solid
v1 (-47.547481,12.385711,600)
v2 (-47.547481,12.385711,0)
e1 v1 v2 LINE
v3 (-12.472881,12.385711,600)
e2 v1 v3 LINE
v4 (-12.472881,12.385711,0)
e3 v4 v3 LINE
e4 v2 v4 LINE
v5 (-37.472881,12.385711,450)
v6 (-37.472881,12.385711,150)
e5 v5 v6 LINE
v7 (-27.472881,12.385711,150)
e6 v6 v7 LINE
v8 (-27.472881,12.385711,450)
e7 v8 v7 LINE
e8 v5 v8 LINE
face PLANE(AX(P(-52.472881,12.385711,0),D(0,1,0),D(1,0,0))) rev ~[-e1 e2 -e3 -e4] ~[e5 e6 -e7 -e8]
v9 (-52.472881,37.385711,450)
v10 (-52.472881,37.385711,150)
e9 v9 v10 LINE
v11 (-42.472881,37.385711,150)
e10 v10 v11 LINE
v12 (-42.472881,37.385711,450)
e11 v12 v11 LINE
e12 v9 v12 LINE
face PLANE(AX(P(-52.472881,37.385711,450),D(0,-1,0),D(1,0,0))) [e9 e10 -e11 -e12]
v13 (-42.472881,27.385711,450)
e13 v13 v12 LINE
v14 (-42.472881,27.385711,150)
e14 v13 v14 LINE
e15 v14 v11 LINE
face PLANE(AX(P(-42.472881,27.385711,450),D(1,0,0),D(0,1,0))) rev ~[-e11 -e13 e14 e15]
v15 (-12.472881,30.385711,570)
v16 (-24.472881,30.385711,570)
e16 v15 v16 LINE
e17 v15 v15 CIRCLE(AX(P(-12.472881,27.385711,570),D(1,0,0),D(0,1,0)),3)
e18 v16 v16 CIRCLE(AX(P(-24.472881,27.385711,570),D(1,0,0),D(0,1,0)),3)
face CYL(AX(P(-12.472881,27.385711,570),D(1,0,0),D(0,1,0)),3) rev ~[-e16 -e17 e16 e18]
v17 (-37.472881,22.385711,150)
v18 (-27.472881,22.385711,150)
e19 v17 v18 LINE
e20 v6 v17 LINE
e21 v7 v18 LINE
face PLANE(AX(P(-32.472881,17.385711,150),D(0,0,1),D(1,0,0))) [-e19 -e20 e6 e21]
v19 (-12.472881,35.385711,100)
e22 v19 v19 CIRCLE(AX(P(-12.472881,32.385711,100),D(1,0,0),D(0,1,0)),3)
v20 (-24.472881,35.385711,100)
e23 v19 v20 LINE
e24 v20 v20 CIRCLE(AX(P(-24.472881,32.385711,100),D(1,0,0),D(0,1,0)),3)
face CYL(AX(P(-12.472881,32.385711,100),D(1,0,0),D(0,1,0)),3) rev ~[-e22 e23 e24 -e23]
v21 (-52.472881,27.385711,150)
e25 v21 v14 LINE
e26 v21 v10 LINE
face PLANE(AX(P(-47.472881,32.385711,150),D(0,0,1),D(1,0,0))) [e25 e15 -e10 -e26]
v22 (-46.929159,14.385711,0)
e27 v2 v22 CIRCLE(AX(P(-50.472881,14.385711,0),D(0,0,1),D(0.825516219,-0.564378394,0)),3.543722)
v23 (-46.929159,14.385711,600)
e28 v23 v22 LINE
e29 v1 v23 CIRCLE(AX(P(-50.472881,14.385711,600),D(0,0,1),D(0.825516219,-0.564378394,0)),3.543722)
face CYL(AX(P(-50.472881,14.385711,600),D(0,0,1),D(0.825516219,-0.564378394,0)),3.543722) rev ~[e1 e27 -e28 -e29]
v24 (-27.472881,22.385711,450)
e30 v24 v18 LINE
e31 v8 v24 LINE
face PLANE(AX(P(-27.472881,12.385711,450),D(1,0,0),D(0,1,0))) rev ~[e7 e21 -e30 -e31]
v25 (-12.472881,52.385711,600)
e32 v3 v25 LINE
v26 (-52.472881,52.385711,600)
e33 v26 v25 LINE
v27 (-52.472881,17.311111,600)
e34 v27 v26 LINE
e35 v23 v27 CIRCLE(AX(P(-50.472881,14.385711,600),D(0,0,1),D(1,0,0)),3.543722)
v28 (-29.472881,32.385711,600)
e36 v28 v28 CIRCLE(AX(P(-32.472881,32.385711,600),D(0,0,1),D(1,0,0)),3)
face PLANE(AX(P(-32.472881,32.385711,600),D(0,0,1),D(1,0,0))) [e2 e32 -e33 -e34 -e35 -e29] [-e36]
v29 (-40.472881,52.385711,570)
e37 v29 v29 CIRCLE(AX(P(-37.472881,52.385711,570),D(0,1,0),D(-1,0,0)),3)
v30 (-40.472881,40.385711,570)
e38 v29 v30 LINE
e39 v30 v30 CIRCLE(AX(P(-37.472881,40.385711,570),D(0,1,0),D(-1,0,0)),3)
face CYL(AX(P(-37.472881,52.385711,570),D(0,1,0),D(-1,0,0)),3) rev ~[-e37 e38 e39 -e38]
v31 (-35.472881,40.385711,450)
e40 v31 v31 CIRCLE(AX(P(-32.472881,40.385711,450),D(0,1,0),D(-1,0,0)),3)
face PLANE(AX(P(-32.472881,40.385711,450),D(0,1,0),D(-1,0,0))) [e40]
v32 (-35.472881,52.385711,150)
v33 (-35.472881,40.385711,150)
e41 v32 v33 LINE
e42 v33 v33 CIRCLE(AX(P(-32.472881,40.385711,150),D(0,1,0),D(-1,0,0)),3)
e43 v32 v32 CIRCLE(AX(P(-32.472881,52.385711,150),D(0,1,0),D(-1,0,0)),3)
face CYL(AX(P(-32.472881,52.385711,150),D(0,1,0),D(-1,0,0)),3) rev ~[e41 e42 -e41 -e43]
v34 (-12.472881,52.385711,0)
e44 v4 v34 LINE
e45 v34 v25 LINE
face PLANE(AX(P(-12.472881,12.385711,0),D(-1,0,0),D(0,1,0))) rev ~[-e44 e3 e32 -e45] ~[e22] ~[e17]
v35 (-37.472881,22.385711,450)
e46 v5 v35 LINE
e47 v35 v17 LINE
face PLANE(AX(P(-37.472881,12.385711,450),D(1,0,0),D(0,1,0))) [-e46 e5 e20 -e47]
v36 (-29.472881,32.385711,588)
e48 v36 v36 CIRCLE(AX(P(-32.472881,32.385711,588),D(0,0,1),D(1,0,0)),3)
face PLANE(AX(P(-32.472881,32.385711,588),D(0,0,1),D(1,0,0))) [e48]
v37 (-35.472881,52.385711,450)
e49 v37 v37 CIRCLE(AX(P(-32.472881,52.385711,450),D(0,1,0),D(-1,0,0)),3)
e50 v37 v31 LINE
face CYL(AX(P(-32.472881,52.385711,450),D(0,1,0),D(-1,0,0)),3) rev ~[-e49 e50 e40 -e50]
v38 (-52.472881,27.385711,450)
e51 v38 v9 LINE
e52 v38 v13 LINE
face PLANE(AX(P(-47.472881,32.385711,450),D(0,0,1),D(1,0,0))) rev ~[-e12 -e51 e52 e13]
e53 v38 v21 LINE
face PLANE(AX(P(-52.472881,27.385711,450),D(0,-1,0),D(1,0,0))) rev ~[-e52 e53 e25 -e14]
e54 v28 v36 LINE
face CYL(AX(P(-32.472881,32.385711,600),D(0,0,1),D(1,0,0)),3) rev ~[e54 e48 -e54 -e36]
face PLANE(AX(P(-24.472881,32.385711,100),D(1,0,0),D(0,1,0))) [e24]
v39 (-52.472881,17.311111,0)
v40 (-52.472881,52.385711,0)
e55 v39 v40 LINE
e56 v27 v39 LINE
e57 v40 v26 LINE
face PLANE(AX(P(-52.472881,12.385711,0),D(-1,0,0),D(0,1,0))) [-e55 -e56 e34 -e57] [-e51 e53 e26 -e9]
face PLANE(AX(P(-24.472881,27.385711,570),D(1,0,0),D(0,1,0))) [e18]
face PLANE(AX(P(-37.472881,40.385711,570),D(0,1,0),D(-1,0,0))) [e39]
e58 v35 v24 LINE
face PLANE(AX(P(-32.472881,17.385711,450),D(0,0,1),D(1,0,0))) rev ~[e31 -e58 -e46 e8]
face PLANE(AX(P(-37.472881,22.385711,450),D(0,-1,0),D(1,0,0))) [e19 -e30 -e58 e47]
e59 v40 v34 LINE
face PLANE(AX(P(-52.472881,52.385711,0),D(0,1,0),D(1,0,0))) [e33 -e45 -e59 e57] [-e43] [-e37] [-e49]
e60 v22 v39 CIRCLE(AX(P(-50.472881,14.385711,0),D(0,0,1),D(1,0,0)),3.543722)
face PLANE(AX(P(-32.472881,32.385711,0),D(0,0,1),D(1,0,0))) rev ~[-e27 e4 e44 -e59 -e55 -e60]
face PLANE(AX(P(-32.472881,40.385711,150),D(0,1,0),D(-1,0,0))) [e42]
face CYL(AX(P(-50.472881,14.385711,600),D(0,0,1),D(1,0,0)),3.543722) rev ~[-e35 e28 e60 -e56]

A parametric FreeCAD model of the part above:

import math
import FreeCAD as App
import Part
import Sketcher

V = App.Vector


def add_polygon(sketch, points):
    """Adds a closed chain of lines whose ends are joined by coincident constraints."""
    first, n = sketch.GeometryCount, len(points)
    for a, b in zip(points, points[1:] + points[:1]):
        sketch.addGeometry(Part.LineSegment(App.Vector(*a, 0), App.Vector(*b, 0)), False)
    for i in range(n):
        sketch.addConstraint(Sketcher.Constraint("Coincident", first + i, 2, first + (i + 1) % n, 1))

doc = App.newDocument("Part")
body = doc.addObject("PartDesign::Body", "Body")

# Sketch on XY plane
sketch1 = body.newObject("Sketcher::SketchObject", "Sketch")
sketch1.AttachmentSupport = (doc.getObject("XY_Plane"), [""])
sketch1.MapMode = "FlatFace"
add_polygon(sketch1, [(-52.472881, 52.385711), (-52.472881, 12.385711), (-12.472881, 12.385711), (-12.472881, 52.385711)])  # lines 0-3
sketch1.addConstraint(Sketcher.Constraint("Vertical", 0))
sketch1.addConstraint(Sketcher.Constraint("Horizontal", 1))
sketch1.addConstraint(Sketcher.Constraint("Vertical", 2))
sketch1.addConstraint(Sketcher.Constraint("Horizontal", 3))
sketch1.addConstraint(Sketcher.Constraint("Equal", 3, 0))
sketch1.addConstraint(Sketcher.Constraint("DistanceX", 1, 1, 1, 2, 40.0))
sketch1.addConstraint(Sketcher.Constraint("DistanceX", 0, 2, -1, 1, 52.472881))
sketch1.addConstraint(Sketcher.Constraint("DistanceY", -1, 1, 0, 2, 12.385711))
pad1 = body.newObject("PartDesign::Pad", "Pad")
pad1.Profile = sketch1
pad1.Length = 600

# Sketch on YZ plane
sketch2 = body.newObject("Sketcher::SketchObject", "Sketch001")
sketch2.AttachmentSupport = (doc.getObject("YZ_Plane"), [""])
sketch2.MapMode = "FlatFace"
sketch2.AttachmentOffset = App.Placement(V(0, 0, -12.472881), App.Rotation())
sketch2.addGeometry(Part.Circle(V(27.385711, 570, 0), V(0, 0, 1), 3), False)
sketch2.addConstraint(Sketcher.Constraint("Diameter", 0, 6.0))
sketch2.addConstraint(Sketcher.Constraint("DistanceY", -1, 1, 0, 3, 570.0))
sketch2.addConstraint(Sketcher.Constraint("DistanceX", -1, 1, 0, 3, 27.385711))
pocket1 = body.newObject("PartDesign::Pocket", "Pocket")
pocket1.Profile = sketch2
pocket1.Length = 12

# Sketch on XZ plane
sketch3 = body.newObject("Sketcher::SketchObject", "Sketch002")
sketch3.AttachmentSupport = (doc.getObject("XZ_Plane"), [""])
sketch3.MapMode = "FlatFace"
sketch3.AttachmentOffset = App.Placement(V(0, 0, -52.385711), App.Rotation())
sketch3.addGeometry(Part.Circle(V(-37.472881, 570, 0), V(0, 0, 1), 3), False)
sketch3.addConstraint(Sketcher.Constraint("Diameter", 0, 6.0))
sketch3.addConstraint(Sketcher.Constraint("DistanceY", -1, 1, 0, 3, 570.0))
sketch3.addConstraint(Sketcher.Constraint("DistanceX", 0, 3, -1, 1, 37.472881))
pocket2 = body.newObject("PartDesign::Pocket", "Pocket001")
pocket2.Profile = sketch3
pocket2.Length = 12
pocket2.Reversed = True

# Sketch on XY plane
sketch4 = body.newObject("Sketcher::SketchObject", "Sketch003")
sketch4.AttachmentSupport = (doc.getObject("XY_Plane"), [""])
sketch4.MapMode = "FlatFace"
sketch4.AttachmentOffset = App.Placement(V(0, 0, 600), App.Rotation())
sketch4.addGeometry(Part.ArcOfCircle(Part.Circle(V(-50.472881, 14.385711, 0), V(0, 0, 1), 3.543722), math.radians(-34.359137), math.radians(0)), False)
sketch4.addGeometry(Part.ArcOfCircle(Part.Circle(V(-50.472881, 14.385711, 0), V(0, 0, 1), 3.543722), math.radians(0), math.radians(124.359137)), False)
sketch4.addGeometry(Part.LineSegment(V(-52.472881, 17.311111, 0), V(-52.472881, 12.385711, 0)), False)
sketch4.addGeometry(Part.LineSegment(V(-52.472881, 12.385711, 0), V(-47.547481, 12.385711, 0)), False)
sketch4.addConstraint(Sketcher.Constraint("Tangent", 0, 2, 1, 1))
sketch4.addConstraint(Sketcher.Constraint("Coincident", 1, 2, 2, 1))
sketch4.addConstraint(Sketcher.Constraint("Coincident", 2, 2, 3, 1))
sketch4.addConstraint(Sketcher.Constraint("Coincident", 3, 2, 0, 1))
sketch4.addConstraint(Sketcher.Constraint("Vertical", 2))
sketch4.addConstraint(Sketcher.Constraint("Horizontal", 3))
sketch4.addConstraint(Sketcher.Constraint("Equal", 0, 1))
sketch4.addConstraint(Sketcher.Constraint("Horizontal", 1, 3, 0, 2))
sketch4.addConstraint(Sketcher.Constraint("Equal", 3, 2))
sketch4.addConstraint(Sketcher.Constraint("DistanceX", 1, 2, 0, 3, 2.0))
sketch4.addConstraint(Sketcher.Constraint("Radius", 0, 3.543722))
sketch4.addConstraint(Sketcher.Constraint("DistanceX", 0, 3, -1, 1, 50.472881))
sketch4.addConstraint(Sketcher.Constraint("DistanceY", -1, 1, 0, 3, 14.385711))
pocket3 = body.newObject("PartDesign::Pocket", "Pocket002")
pocket3.Profile = sketch4
pocket3.Length = 600

# Sketch on XY plane
sketch5 = body.newObject("Sketcher::SketchObject", "Sketch004")
sketch5.AttachmentSupport = (doc.getObject("XY_Plane"), [""])
sketch5.MapMode = "FlatFace"
sketch5.AttachmentOffset = App.Placement(V(0, 0, 600), App.Rotation())
sketch5.addGeometry(Part.Circle(V(-32.472881, 32.385711, 0), V(0, 0, 1), 3), False)
sketch5.addConstraint(Sketcher.Constraint("Diameter", 0, 6.0))
sketch5.addConstraint(Sketcher.Constraint("DistanceX", 0, 3, -1, 1, 32.472881))
sketch5.addConstraint(Sketcher.Constraint("DistanceY", -1, 1, 0, 3, 32.385711))
pocket4 = body.newObject("PartDesign::Pocket", "Pocket003")
pocket4.Profile = sketch5
pocket4.Length = 12

# Sketch on XZ plane
sketch6 = body.newObject("Sketcher::SketchObject", "Sketch005")
sketch6.AttachmentSupport = (doc.getObject("XZ_Plane"), [""])
sketch6.MapMode = "FlatFace"
sketch6.AttachmentOffset = App.Placement(V(0, 0, -52.385711), App.Rotation())
sketch6.addGeometry(Part.Circle(V(-32.472881, 450, 0), V(0, 0, 1), 3), False)
sketch6.addConstraint(Sketcher.Constraint("Diameter", 0, 6.0))
sketch6.addConstraint(Sketcher.Constraint("DistanceY", -1, 1, 0, 3, 450.0))
sketch6.addConstraint(Sketcher.Constraint("DistanceX", 0, 3, -1, 1, 32.472881))
pocket5 = body.newObject("PartDesign::Pocket", "Pocket004")
pocket5.Profile = sketch6
pocket5.Length = 12
pocket5.Reversed = True

# Sketch on XZ plane
sketch7 = body.newObject("Sketcher::SketchObject", "Sketch006")
sketch7.AttachmentSupport = (doc.getObject("XZ_Plane"), [""])
sketch7.MapMode = "FlatFace"
sketch7.AttachmentOffset = App.Placement(V(0, 0, -52.385711), App.Rotation())
sketch7.addGeometry(Part.Circle(V(-32.472881, 150, 0), V(0, 0, 1), 3), False)
sketch7.addConstraint(Sketcher.Constraint("Diameter", 0, 6.0))
sketch7.addConstraint(Sketcher.Constraint("DistanceY", -1, 1, 0, 3, 150.0))
sketch7.addConstraint(Sketcher.Constraint("DistanceX", 0, 3, -1, 1, 32.472881))
pocket6 = body.newObject("PartDesign::Pocket", "Pocket005")
pocket6.Profile = sketch7
pocket6.Length = 12
pocket6.Reversed = True

# Sketch on YZ plane
sketch8 = body.newObject("Sketcher::SketchObject", "Sketch007")
sketch8.AttachmentSupport = (doc.getObject("YZ_Plane"), [""])
sketch8.MapMode = "FlatFace"
sketch8.AttachmentOffset = App.Placement(V(0, 0, -12.472881), App.Rotation())
sketch8.addGeometry(Part.Circle(V(32.385711, 100, 0), V(0, 0, 1), 3), False)
sketch8.addConstraint(Sketcher.Constraint("Diameter", 0, 6.0))
sketch8.addConstraint(Sketcher.Constraint("DistanceY", -1, 1, 0, 3, 100.0))
sketch8.addConstraint(Sketcher.Constraint("DistanceX", -1, 1, 0, 3, 32.385711))
pocket7 = body.newObject("PartDesign::Pocket", "Pocket006")
pocket7.Profile = sketch8
pocket7.Length = 12

# Sketch on XY plane
sketch9 = body.newObject("Sketcher::SketchObject", "Sketch008")
sketch9.AttachmentSupport = (doc.getObject("XY_Plane"), [""])
sketch9.MapMode = "FlatFace"
sketch9.AttachmentOffset = App.Placement(V(0, 0, 450), App.Rotation())
add_polygon(sketch9, [(-52.472881, 37.385711), (-52.472881, 27.385711), (-42.472881, 27.385711), (-42.472881, 37.385711)])  # lines 0-3
sketch9.addConstraint(Sketcher.Constraint("Vertical", 0))
sketch9.addConstraint(Sketcher.Constraint("Horizontal", 1))
sketch9.addConstraint(Sketcher.Constraint("Vertical", 2))
sketch9.addConstraint(Sketcher.Constraint("Horizontal", 3))
sketch9.addConstraint(Sketcher.Constraint("Equal", 3, 0))
sketch9.addConstraint(Sketcher.Constraint("DistanceX", 1, 1, 1, 2, 10.0))
sketch9.addConstraint(Sketcher.Constraint("DistanceX", 0, 2, -1, 1, 52.472881))
sketch9.addConstraint(Sketcher.Constraint("DistanceY", -1, 1, 0, 2, 27.385711))
pocket8 = body.newObject("PartDesign::Pocket", "Pocket007")
pocket8.Profile = sketch9
pocket8.Length = 300

# Sketch on XY plane
sketch10 = body.newObject("Sketcher::SketchObject", "Sketch009")
sketch10.AttachmentSupport = (doc.getObject("XY_Plane"), [""])
sketch10.MapMode = "FlatFace"
sketch10.AttachmentOffset = App.Placement(V(0, 0, 450), App.Rotation())
add_polygon(sketch10, [(-37.472881, 22.385711), (-37.472881, 12.385711), (-27.472881, 12.385711), (-27.472881, 22.385711)])  # lines 0-3
sketch10.addConstraint(Sketcher.Constraint("Vertical", 0))
sketch10.addConstraint(Sketcher.Constraint("Horizontal", 1))
sketch10.addConstraint(Sketcher.Constraint("Vertical", 2))
sketch10.addConstraint(Sketcher.Constraint("Horizontal", 3))
sketch10.addConstraint(Sketcher.Constraint("Equal", 3, 0))
sketch10.addConstraint(Sketcher.Constraint("DistanceX", 1, 1, 1, 2, 10.0))
sketch10.addConstraint(Sketcher.Constraint("DistanceX", 0, 2, -1, 1, 37.472881))
sketch10.addConstraint(Sketcher.Constraint("DistanceY", -1, 1, 0, 2, 12.385711))
pocket9 = body.newObject("PartDesign::Pocket", "Pocket008")
pocket9.Profile = sketch10
pocket9.Length = 300

doc.recompute()
